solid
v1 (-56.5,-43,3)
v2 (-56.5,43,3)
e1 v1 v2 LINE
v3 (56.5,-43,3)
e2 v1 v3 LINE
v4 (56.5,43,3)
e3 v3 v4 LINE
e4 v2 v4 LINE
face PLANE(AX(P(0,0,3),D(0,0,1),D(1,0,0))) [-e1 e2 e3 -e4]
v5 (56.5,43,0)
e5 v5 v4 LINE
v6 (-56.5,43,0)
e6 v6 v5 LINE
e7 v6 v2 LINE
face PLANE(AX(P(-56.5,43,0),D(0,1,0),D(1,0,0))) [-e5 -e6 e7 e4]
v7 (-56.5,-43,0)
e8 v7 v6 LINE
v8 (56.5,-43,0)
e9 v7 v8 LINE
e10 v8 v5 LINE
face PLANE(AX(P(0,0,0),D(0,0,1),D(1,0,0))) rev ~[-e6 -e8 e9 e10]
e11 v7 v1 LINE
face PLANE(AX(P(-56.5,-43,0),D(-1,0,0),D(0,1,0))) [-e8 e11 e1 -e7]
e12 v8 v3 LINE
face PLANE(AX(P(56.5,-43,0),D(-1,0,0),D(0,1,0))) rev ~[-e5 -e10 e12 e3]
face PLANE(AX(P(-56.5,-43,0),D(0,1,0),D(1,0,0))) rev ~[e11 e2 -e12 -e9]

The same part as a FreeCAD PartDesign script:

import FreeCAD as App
import Part
import Sketcher


def add_polygon(sketch, points):
    """Adds a closed chain of lines whose ends are joined by coincident constraints."""
    first, n = sketch.GeometryCount, len(points)
    for a, b in zip(points, points[1:] + points[:1]):
        sketch.addGeometry(Part.LineSegment(App.Vector(*a, 0), App.Vector(*b, 0)), False)
    for i in range(n):
        sketch.addConstraint(Sketcher.Constraint("Coincident", first + i, 2, first + (i + 1) % n, 1))

doc = App.newDocument("Part")
body = doc.addObject("PartDesign::Body", "Body")

sketch1 = body.newObject("Sketcher::SketchObject", "Sketch")
sketch1.AttachmentSupport = (doc.getObject("XY_Plane"), [""])
sketch1.MapMode = "FlatFace"
add_polygon(sketch1, [(-56.5, 43), (-56.5, -43), (56.5, -43), (56.5, 43)])
sketch1.addConstraint(Sketcher.Constraint("Vertical", 0))
sketch1.addConstraint(Sketcher.Constraint("Horizontal", 1))
sketch1.addConstraint(Sketcher.Constraint("Vertical", 2))
sketch1.addConstraint(Sketcher.Constraint("Horizontal", 3))
sketch1.addConstraint(Sketcher.Constraint("Symmetric", 0, 2, 2, 2, -1, 1))
sketch1.addConstraint(Sketcher.Constraint("DistanceX", 1, 1, 1, 2, 113.0))
sketch1.addConstraint(Sketcher.Constraint("DistanceY", 0, 2, 0, 1, 86.0))
pad1 = body.newObject("PartDesign::Pad", "Pad")
pad1.Profile = sketch1
pad1.Length = 3

doc.recompute()
